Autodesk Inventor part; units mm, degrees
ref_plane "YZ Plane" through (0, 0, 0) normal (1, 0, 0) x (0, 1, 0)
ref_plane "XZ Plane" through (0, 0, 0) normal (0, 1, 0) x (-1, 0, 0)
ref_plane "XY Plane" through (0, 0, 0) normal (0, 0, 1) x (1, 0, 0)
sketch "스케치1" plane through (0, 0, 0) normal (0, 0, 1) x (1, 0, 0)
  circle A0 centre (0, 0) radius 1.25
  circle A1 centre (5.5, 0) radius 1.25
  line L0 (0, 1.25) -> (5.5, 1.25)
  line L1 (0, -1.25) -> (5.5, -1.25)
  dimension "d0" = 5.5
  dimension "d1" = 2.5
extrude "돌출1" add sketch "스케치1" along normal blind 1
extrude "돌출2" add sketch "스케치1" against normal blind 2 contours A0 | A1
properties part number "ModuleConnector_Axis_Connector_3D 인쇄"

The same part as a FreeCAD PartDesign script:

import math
import FreeCAD as App
import Part
import Sketcher
from FreeCAD import Vector

doc = App.newDocument("Part")
body = doc.addObject("PartDesign::Body", "Body")

# Sketch on XY plane
sketch1 = body.newObject("Sketcher::SketchObject", "Sketch")
sketch1.AttachmentSupport = (doc.getObject("XY_Plane"), [""])
sketch1.MapMode = "FlatFace"
sketch1.addGeometry([
    Part.ArcOfCircle(Part.Circle(Vector(0, 0, 0), Vector(0, 0, 1), 1.2), math.radians(90), math.radians(270)),
    Part.LineSegment(Vector(0, -1.2, 0), Vector(5.5, -1.2, 0)),
    Part.ArcOfCircle(Part.Circle(Vector(5.5, 0, 0), Vector(0, 0, 1), 1.2), math.radians(-90), math.radians(90)),
    Part.LineSegment(Vector(5.5, 1.2, 0), Vector(0, 1.2, 0)),
], False)
sketch1.addConstraint([
    Sketcher.Constraint("Tangent", 0, 2, 1, 1),
    Sketcher.Constraint("Tangent", 1, 2, 2, 1),
    Sketcher.Constraint("Tangent", 2, 2, 3, 1),
    Sketcher.Constraint("Tangent", 3, 2, 0, 1),
    Sketcher.Constraint("Horizontal", 1),
    Sketcher.Constraint("Horizontal", 3),
    Sketcher.Constraint("Coincident", 0, 3, -1, 1),
    Sketcher.Constraint("Radius", 0, 1.25),
    Sketcher.Constraint("DistanceX", 1, 1, 1, 2, 5.5),
])
pad1 = body.newObject("PartDesign::Pad", "Pad")
pad1.Profile = sketch1
pad1.Length = 1

# Sketch on XY plane
sketch2 = body.newObject("Sketcher::SketchObject", "Sketch001")
sketch2.AttachmentSupport = (doc.getObject("XY_Plane"), [""])
sketch2.MapMode = "FlatFace"
sketch2.addGeometry([
    Part.Circle(Vector(0, 0, 0), Vector(0, 0, 1), 1.2),
    Part.Circle(Vector(5.5, 0, 0), Vector(0, 0, 1), 1.2),
], False)
sketch2.addConstraint([
    Sketcher.Constraint("Coincident", 0, 3, -1, 1),
    Sketcher.Constraint("Equal", 0, 1),
    Sketcher.Constraint("PointOnObject", 1, 3, -1),
    Sketcher.Constraint("Diameter", 0, 2.5),
    Sketcher.Constraint("DistanceX", -1, 1, 1, 3, 5.5),
])
pad2 = body.newObject("PartDesign::Pad", "Pad001")
pad2.Profile = sketch2
pad2.Length = 2
pad2.Reversed = True

doc.recompute()
